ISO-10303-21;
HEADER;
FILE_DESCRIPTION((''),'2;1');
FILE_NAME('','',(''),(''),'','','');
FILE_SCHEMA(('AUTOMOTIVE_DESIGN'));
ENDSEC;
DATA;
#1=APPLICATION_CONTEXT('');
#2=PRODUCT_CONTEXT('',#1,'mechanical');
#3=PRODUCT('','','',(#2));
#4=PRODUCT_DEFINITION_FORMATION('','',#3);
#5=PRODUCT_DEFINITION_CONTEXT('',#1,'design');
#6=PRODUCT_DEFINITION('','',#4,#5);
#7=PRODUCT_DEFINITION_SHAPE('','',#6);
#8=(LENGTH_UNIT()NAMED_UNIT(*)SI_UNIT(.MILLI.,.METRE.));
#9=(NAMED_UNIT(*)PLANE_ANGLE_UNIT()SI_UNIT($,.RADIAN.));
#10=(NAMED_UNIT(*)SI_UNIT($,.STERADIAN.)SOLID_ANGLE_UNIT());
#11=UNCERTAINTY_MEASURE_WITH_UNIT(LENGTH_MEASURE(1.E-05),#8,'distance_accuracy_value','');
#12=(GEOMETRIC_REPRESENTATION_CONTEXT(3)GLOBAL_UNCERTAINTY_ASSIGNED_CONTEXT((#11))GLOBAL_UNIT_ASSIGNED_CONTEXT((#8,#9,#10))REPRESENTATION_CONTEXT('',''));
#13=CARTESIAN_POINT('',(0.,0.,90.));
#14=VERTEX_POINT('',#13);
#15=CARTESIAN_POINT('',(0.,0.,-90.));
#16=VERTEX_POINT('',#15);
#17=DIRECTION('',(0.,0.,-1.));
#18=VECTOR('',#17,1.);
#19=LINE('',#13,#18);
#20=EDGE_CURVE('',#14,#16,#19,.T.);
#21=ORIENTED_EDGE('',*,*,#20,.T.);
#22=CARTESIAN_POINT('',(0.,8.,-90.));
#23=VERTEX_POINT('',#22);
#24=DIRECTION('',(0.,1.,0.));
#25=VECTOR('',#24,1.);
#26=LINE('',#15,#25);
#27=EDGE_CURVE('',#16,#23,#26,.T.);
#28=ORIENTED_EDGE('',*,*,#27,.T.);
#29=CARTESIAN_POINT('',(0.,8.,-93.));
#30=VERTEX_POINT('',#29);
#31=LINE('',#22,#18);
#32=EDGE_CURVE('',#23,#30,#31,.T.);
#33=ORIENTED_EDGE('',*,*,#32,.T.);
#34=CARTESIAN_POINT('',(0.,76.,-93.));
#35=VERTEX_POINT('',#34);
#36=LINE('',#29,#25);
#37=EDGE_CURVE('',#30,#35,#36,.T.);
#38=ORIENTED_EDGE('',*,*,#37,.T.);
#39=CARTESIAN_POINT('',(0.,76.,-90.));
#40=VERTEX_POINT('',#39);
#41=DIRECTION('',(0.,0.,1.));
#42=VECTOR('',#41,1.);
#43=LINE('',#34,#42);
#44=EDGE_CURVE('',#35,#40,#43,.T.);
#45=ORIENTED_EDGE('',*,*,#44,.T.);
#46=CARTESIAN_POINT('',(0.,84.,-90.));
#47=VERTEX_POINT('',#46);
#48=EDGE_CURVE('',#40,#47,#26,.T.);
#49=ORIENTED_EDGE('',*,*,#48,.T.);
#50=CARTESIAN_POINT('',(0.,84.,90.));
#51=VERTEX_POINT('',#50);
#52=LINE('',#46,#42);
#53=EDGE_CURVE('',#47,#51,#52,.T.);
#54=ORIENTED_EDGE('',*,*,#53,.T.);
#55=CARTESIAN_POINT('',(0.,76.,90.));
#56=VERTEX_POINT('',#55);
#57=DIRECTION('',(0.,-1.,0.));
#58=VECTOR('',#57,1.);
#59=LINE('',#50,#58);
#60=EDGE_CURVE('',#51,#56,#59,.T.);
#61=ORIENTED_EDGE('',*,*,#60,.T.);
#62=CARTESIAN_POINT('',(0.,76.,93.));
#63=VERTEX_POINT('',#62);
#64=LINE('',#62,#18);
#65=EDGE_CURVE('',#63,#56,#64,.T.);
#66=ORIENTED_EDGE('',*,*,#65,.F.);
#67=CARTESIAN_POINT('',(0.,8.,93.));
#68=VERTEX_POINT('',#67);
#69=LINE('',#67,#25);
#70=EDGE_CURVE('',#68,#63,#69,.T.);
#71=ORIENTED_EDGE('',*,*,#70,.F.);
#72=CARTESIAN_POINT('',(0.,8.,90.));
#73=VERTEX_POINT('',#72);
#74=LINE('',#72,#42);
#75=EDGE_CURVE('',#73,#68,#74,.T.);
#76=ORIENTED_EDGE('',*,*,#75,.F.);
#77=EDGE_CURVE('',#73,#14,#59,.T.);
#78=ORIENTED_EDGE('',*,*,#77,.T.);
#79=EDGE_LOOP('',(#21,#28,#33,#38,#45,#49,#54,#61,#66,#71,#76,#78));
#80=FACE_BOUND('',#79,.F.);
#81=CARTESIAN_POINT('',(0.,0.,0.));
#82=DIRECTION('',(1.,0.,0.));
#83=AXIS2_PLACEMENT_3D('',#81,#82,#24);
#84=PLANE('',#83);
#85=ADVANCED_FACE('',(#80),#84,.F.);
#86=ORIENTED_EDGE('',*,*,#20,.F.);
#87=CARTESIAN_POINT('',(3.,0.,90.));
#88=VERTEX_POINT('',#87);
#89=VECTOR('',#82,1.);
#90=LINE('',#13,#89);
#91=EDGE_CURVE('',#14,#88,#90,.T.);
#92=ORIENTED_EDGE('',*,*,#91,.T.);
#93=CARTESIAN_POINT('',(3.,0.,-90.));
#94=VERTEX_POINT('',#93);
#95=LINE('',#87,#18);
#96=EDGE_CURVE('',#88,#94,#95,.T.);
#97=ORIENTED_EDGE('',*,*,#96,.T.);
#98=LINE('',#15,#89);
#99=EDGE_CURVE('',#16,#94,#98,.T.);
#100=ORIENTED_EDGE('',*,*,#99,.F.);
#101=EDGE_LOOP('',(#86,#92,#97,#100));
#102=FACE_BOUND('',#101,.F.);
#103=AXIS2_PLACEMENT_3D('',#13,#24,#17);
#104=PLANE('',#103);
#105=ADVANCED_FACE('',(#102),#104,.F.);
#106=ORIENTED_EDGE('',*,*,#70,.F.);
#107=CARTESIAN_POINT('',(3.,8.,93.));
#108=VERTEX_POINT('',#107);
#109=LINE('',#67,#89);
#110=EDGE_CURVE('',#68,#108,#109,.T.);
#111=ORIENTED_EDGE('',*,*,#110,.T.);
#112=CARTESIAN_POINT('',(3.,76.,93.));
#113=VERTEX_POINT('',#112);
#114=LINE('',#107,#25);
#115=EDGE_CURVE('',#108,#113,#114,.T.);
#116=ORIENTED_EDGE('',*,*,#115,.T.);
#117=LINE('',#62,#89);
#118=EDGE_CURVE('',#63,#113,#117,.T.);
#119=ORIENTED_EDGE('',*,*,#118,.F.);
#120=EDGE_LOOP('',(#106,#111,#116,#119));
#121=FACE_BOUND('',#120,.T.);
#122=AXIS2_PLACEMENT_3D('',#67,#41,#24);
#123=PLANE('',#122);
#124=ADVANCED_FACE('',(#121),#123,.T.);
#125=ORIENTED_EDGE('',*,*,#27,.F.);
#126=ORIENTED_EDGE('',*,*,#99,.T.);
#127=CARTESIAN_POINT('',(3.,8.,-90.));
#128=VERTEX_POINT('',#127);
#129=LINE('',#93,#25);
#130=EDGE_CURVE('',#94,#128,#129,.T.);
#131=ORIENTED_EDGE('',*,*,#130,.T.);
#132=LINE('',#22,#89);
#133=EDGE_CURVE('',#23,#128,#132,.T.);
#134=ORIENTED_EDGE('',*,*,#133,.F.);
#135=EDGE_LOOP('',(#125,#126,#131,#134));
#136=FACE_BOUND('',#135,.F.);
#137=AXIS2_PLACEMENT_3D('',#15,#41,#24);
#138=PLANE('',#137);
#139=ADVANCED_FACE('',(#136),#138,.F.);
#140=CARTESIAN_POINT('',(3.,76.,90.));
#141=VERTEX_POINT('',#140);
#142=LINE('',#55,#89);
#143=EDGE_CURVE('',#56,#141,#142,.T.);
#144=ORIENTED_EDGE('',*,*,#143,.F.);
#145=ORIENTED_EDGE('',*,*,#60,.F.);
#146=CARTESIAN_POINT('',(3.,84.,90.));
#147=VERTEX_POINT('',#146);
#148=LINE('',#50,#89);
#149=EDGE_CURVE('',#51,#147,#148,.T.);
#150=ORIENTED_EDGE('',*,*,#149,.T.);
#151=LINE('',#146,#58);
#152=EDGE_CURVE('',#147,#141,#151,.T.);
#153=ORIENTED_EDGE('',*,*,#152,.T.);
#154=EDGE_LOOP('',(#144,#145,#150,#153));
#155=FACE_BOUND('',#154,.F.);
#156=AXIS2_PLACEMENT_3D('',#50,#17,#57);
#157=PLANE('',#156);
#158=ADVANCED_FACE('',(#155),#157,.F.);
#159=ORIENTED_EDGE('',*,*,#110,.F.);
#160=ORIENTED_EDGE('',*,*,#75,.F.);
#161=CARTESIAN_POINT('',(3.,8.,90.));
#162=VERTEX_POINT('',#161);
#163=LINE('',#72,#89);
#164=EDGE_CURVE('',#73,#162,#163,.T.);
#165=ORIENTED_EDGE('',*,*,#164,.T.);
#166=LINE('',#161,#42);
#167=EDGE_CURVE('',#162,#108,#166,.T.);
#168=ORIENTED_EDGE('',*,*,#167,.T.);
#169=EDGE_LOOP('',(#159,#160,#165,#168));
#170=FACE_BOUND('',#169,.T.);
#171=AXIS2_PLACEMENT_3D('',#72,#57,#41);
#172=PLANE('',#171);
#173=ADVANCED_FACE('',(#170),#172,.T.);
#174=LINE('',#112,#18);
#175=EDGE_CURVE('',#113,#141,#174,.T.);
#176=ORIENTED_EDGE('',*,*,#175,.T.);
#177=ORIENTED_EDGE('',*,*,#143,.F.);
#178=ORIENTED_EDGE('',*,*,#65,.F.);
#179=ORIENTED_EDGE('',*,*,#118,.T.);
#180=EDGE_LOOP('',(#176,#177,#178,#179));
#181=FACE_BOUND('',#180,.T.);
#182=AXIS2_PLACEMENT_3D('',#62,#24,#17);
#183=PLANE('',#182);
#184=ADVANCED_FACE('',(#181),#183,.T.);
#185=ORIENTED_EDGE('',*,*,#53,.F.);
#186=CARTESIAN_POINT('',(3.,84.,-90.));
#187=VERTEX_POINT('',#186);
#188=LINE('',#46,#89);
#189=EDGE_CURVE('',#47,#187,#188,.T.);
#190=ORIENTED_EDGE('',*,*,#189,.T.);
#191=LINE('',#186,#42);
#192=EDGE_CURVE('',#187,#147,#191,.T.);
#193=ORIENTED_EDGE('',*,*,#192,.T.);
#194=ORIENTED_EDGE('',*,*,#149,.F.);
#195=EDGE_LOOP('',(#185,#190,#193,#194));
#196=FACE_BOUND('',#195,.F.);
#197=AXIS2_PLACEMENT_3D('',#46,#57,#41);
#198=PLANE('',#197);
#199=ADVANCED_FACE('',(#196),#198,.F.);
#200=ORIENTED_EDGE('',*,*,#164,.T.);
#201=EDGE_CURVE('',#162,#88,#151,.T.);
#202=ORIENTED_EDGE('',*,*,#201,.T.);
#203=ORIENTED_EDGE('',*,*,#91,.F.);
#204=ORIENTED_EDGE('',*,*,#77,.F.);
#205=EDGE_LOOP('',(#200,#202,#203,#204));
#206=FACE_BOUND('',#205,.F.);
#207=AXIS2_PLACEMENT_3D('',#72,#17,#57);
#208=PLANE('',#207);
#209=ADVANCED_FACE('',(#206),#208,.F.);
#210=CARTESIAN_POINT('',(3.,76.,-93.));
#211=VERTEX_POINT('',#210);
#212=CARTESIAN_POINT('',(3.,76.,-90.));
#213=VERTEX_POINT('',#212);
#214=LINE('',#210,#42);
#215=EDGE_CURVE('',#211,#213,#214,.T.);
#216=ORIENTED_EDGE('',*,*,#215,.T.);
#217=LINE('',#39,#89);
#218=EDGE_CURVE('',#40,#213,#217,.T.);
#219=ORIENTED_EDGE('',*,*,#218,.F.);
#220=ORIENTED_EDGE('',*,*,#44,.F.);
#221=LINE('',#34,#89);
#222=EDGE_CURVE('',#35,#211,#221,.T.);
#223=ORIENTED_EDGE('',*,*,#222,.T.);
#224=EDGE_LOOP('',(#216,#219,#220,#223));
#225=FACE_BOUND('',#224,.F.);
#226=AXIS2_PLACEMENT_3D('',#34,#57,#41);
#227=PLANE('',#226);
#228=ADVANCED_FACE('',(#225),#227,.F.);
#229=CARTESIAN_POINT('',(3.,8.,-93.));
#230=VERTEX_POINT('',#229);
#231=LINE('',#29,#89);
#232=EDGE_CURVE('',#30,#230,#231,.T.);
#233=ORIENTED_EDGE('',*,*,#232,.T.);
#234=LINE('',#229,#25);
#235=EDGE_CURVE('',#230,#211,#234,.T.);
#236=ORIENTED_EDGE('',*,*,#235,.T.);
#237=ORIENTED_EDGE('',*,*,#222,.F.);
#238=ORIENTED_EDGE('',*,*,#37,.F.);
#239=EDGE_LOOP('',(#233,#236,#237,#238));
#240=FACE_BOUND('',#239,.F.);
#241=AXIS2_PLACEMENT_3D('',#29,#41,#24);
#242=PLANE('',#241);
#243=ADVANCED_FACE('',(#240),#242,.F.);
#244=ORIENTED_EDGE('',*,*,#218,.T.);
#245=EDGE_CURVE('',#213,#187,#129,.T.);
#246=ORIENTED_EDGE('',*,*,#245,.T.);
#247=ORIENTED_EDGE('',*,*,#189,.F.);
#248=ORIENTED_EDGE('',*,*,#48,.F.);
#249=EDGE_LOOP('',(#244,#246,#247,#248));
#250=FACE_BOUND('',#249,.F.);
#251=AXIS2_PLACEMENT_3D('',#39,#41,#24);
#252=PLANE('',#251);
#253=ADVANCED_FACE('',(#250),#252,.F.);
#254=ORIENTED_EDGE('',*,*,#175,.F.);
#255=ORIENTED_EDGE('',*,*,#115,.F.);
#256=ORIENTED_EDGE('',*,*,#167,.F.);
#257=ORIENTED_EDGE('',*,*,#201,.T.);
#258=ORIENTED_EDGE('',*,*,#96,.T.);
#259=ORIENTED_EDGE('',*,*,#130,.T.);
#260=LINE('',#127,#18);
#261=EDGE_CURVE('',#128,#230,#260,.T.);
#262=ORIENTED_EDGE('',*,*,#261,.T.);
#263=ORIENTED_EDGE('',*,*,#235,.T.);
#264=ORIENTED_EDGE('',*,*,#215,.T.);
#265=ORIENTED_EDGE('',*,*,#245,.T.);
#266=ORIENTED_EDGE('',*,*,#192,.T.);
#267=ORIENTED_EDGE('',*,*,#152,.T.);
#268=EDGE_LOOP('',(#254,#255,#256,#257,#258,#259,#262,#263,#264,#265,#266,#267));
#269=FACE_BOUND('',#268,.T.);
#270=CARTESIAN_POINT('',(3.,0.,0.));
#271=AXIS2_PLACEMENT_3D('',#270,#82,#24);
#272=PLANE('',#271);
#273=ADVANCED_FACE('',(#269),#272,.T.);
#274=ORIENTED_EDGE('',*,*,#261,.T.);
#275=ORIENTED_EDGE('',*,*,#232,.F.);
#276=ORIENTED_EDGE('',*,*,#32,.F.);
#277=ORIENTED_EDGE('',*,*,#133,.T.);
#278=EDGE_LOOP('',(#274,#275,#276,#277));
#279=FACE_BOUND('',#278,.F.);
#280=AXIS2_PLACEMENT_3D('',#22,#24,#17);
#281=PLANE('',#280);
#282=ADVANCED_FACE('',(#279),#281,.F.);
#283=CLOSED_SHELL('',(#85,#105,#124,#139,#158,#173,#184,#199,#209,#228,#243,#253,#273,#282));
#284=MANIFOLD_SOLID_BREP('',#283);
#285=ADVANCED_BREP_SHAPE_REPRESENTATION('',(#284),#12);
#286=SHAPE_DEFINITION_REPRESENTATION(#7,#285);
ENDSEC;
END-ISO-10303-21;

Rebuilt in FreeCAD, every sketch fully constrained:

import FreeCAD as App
import Part
import Sketcher

V = App.Vector
Q = App.Units.Quantity


def add_polygon(sketch, points):
    """Adds a closed chain of lines whose ends are joined by coincident constraints."""
    first, n = sketch.GeometryCount, len(points)
    for a, b in zip(points, points[1:] + points[:1]):
        sketch.addGeometry(Part.LineSegment(App.Vector(*a, 0), App.Vector(*b, 0)), False)
    for i in range(n):
        sketch.addConstraint(Sketcher.Constraint("Coincident", first + i, 2, first + (i + 1) % n, 1))

doc = App.newDocument("Part")
body = doc.addObject("PartDesign::Body", "Body")

sketch1 = doc.addObject("Sketcher::SketchObject", "Sketch")
body.addObject(sketch1)
sketch1.AttachmentSupport = (doc.YZ_Plane, [""])
sketch1.MapMode = "FlatFace"
add_polygon(sketch1, [(84, -90), (84, 90), (76, 90), (76, 93), (8, 93), (8, 90), (0, 90), (0, -90), (8, -90), (8, -93), (76, -93), (76, -90)])
sketch1.addConstraint(Sketcher.Constraint("Vertical", 0))
sketch1.addConstraint(Sketcher.Constraint("Horizontal", 1))
sketch1.addConstraint(Sketcher.Constraint("Vertical", 2))
sketch1.addConstraint(Sketcher.Constraint("Horizontal", 3))
sketch1.addConstraint(Sketcher.Constraint("Vertical", 4))
sketch1.addConstraint(Sketcher.Constraint("Horizontal", 5))
sketch1.addConstraint(Sketcher.Constraint("Vertical", 6))
sketch1.addConstraint(Sketcher.Constraint("Horizontal", 7))
sketch1.addConstraint(Sketcher.Constraint("Vertical", 8))
sketch1.addConstraint(Sketcher.Constraint("Horizontal", 9))
sketch1.addConstraint(Sketcher.Constraint("Vertical", 10))
sketch1.addConstraint(Sketcher.Constraint("Horizontal", 11))
sketch1.addConstraint(Sketcher.Constraint("Symmetric", 5, 2, 6, 2, -1, 1))
sketch1.addConstraint(Sketcher.Constraint("Symmetric", 3, 2, 8, 2, -1))
sketch1.addConstraint(Sketcher.Constraint("Symmetric", 1, 2, 10, 2, -1))
sketch1.addConstraint(Sketcher.Constraint("Horizontal", 1, 2, 4, 2))
sketch1.addConstraint(Sketcher.Constraint("Equal", 1, 5))
sketch1.addConstraint(Sketcher.Constraint("DistanceX", 1, 2, 1, 1, Q("8 mm")))
sketch1.addConstraint(Sketcher.Constraint("DistanceY", 0, 1, 0, 2, Q("180 mm")))
sketch1.addConstraint(Sketcher.Constraint("DistanceY", 2, 1, 2, 2, Q("3 mm")))
sketch1.addConstraint(Sketcher.Constraint("DistanceX", -1, 1, 0, 2, Q("84 mm")))
pad1 = doc.addObject("PartDesign::Pad", "Pad")
body.addObject(pad1)
pad1.Profile = sketch1
pad1.Length = 3

doc.recompute()
